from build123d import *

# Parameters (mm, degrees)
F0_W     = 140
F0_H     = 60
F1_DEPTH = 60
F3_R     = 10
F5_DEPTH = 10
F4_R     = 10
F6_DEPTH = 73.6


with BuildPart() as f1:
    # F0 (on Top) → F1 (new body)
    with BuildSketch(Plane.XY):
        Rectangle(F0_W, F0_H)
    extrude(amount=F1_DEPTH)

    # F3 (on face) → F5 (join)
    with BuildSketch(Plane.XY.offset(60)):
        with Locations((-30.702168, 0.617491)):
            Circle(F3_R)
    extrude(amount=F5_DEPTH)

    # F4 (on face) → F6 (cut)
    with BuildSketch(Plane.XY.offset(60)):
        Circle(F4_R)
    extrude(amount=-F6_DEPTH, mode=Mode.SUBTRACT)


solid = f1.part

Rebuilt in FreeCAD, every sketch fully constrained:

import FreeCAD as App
import Part
import Sketcher
from FreeCAD import Vector
Q = App.Units.Quantity

doc = App.newDocument("Part")
body = doc.addObject("PartDesign::Body", "Body")

sketch1 = body.newObject("Sketcher::SketchObject", "Sketch")
sketch1.AttachmentSupport = (doc.getObject("XY_Plane"), [""])
sketch1.MapMode = "FlatFace"
sketch1.addGeometry([
    Part.LineSegment(Vector(-70, 30, 0), Vector(-70, -30, 0)),
    Part.LineSegment(Vector(-70, -30, 0), Vector(70, -30, 0)),
    Part.LineSegment(Vector(70, -30, 0), Vector(70, 30, 0)),
    Part.LineSegment(Vector(70, 30, 0), Vector(-70, 30, 0)),
], False)
sketch1.addConstraint([
    Sketcher.Constraint("Coincident", 0, 2, 1, 1),
    Sketcher.Constraint("Coincident", 1, 2, 2, 1),
    Sketcher.Constraint("Coincident", 2, 2, 3, 1),
    Sketcher.Constraint("Coincident", 3, 2, 0, 1),
    Sketcher.Constraint("Vertical", 0),
    Sketcher.Constraint("Horizontal", 1),
    Sketcher.Constraint("Vertical", 2),
    Sketcher.Constraint("Horizontal", 3),
    Sketcher.Constraint("Symmetric", 0, 2, 2, 2, -1, 1),
    Sketcher.Constraint("DistanceX", 1, 1, 1, 2, Q("140 mm")),
    Sketcher.Constraint("DistanceY", 0, 2, 0, 1, Q("60 mm")),
])
pad1 = body.newObject("PartDesign::Pad", "Pad")
pad1.Profile = sketch1
pad1.Length = 60

sketch2 = body.newObject("Sketcher::SketchObject", "Sketch001")
sketch2.AttachmentSupport = (doc.getObject("XY_Plane"), [""])
sketch2.MapMode = "FlatFace"
sketch2.AttachmentOffset = App.Placement(Vector(0, 0, 60), App.Rotation())
sketch2.addGeometry(Part.Circle(Vector(-31, 1, 0), Vector(0, 0, 1), 10), False)
sketch2.addConstraint([
    Sketcher.Constraint("Diameter", 0, Q("20 mm")),
    Sketcher.Constraint("DistanceX", 0, 3, -1, 1, Q("30.702168 mm")),
    Sketcher.Constraint("DistanceY", -1, 1, 0, 3, Q("0.617491 mm")),
])
pad2 = body.newObject("PartDesign::Pad", "Pad001")
pad2.Profile = sketch2
pad2.Length = 10

sketch3 = body.newObject("Sketcher::SketchObject", "Sketch002")
sketch3.AttachmentSupport = (doc.getObject("XY_Plane"), [""])
sketch3.MapMode = "FlatFace"
sketch3.AttachmentOffset = App.Placement(Vector(0, 0, 60), App.Rotation())
sketch3.addGeometry(Part.Circle(Vector(0, 0, 0), Vector(0, 0, 1), 10), False)
sketch3.addConstraint([
    Sketcher.Constraint("Coincident", 0, 3, -1, 1),
    Sketcher.Constraint("Diameter", 0, Q("20 mm")),
])
pocket1 = body.newObject("PartDesign::Pocket", "Pocket")
pocket1.Profile = sketch3
pocket1.Length = 73.6

doc.recompute()
